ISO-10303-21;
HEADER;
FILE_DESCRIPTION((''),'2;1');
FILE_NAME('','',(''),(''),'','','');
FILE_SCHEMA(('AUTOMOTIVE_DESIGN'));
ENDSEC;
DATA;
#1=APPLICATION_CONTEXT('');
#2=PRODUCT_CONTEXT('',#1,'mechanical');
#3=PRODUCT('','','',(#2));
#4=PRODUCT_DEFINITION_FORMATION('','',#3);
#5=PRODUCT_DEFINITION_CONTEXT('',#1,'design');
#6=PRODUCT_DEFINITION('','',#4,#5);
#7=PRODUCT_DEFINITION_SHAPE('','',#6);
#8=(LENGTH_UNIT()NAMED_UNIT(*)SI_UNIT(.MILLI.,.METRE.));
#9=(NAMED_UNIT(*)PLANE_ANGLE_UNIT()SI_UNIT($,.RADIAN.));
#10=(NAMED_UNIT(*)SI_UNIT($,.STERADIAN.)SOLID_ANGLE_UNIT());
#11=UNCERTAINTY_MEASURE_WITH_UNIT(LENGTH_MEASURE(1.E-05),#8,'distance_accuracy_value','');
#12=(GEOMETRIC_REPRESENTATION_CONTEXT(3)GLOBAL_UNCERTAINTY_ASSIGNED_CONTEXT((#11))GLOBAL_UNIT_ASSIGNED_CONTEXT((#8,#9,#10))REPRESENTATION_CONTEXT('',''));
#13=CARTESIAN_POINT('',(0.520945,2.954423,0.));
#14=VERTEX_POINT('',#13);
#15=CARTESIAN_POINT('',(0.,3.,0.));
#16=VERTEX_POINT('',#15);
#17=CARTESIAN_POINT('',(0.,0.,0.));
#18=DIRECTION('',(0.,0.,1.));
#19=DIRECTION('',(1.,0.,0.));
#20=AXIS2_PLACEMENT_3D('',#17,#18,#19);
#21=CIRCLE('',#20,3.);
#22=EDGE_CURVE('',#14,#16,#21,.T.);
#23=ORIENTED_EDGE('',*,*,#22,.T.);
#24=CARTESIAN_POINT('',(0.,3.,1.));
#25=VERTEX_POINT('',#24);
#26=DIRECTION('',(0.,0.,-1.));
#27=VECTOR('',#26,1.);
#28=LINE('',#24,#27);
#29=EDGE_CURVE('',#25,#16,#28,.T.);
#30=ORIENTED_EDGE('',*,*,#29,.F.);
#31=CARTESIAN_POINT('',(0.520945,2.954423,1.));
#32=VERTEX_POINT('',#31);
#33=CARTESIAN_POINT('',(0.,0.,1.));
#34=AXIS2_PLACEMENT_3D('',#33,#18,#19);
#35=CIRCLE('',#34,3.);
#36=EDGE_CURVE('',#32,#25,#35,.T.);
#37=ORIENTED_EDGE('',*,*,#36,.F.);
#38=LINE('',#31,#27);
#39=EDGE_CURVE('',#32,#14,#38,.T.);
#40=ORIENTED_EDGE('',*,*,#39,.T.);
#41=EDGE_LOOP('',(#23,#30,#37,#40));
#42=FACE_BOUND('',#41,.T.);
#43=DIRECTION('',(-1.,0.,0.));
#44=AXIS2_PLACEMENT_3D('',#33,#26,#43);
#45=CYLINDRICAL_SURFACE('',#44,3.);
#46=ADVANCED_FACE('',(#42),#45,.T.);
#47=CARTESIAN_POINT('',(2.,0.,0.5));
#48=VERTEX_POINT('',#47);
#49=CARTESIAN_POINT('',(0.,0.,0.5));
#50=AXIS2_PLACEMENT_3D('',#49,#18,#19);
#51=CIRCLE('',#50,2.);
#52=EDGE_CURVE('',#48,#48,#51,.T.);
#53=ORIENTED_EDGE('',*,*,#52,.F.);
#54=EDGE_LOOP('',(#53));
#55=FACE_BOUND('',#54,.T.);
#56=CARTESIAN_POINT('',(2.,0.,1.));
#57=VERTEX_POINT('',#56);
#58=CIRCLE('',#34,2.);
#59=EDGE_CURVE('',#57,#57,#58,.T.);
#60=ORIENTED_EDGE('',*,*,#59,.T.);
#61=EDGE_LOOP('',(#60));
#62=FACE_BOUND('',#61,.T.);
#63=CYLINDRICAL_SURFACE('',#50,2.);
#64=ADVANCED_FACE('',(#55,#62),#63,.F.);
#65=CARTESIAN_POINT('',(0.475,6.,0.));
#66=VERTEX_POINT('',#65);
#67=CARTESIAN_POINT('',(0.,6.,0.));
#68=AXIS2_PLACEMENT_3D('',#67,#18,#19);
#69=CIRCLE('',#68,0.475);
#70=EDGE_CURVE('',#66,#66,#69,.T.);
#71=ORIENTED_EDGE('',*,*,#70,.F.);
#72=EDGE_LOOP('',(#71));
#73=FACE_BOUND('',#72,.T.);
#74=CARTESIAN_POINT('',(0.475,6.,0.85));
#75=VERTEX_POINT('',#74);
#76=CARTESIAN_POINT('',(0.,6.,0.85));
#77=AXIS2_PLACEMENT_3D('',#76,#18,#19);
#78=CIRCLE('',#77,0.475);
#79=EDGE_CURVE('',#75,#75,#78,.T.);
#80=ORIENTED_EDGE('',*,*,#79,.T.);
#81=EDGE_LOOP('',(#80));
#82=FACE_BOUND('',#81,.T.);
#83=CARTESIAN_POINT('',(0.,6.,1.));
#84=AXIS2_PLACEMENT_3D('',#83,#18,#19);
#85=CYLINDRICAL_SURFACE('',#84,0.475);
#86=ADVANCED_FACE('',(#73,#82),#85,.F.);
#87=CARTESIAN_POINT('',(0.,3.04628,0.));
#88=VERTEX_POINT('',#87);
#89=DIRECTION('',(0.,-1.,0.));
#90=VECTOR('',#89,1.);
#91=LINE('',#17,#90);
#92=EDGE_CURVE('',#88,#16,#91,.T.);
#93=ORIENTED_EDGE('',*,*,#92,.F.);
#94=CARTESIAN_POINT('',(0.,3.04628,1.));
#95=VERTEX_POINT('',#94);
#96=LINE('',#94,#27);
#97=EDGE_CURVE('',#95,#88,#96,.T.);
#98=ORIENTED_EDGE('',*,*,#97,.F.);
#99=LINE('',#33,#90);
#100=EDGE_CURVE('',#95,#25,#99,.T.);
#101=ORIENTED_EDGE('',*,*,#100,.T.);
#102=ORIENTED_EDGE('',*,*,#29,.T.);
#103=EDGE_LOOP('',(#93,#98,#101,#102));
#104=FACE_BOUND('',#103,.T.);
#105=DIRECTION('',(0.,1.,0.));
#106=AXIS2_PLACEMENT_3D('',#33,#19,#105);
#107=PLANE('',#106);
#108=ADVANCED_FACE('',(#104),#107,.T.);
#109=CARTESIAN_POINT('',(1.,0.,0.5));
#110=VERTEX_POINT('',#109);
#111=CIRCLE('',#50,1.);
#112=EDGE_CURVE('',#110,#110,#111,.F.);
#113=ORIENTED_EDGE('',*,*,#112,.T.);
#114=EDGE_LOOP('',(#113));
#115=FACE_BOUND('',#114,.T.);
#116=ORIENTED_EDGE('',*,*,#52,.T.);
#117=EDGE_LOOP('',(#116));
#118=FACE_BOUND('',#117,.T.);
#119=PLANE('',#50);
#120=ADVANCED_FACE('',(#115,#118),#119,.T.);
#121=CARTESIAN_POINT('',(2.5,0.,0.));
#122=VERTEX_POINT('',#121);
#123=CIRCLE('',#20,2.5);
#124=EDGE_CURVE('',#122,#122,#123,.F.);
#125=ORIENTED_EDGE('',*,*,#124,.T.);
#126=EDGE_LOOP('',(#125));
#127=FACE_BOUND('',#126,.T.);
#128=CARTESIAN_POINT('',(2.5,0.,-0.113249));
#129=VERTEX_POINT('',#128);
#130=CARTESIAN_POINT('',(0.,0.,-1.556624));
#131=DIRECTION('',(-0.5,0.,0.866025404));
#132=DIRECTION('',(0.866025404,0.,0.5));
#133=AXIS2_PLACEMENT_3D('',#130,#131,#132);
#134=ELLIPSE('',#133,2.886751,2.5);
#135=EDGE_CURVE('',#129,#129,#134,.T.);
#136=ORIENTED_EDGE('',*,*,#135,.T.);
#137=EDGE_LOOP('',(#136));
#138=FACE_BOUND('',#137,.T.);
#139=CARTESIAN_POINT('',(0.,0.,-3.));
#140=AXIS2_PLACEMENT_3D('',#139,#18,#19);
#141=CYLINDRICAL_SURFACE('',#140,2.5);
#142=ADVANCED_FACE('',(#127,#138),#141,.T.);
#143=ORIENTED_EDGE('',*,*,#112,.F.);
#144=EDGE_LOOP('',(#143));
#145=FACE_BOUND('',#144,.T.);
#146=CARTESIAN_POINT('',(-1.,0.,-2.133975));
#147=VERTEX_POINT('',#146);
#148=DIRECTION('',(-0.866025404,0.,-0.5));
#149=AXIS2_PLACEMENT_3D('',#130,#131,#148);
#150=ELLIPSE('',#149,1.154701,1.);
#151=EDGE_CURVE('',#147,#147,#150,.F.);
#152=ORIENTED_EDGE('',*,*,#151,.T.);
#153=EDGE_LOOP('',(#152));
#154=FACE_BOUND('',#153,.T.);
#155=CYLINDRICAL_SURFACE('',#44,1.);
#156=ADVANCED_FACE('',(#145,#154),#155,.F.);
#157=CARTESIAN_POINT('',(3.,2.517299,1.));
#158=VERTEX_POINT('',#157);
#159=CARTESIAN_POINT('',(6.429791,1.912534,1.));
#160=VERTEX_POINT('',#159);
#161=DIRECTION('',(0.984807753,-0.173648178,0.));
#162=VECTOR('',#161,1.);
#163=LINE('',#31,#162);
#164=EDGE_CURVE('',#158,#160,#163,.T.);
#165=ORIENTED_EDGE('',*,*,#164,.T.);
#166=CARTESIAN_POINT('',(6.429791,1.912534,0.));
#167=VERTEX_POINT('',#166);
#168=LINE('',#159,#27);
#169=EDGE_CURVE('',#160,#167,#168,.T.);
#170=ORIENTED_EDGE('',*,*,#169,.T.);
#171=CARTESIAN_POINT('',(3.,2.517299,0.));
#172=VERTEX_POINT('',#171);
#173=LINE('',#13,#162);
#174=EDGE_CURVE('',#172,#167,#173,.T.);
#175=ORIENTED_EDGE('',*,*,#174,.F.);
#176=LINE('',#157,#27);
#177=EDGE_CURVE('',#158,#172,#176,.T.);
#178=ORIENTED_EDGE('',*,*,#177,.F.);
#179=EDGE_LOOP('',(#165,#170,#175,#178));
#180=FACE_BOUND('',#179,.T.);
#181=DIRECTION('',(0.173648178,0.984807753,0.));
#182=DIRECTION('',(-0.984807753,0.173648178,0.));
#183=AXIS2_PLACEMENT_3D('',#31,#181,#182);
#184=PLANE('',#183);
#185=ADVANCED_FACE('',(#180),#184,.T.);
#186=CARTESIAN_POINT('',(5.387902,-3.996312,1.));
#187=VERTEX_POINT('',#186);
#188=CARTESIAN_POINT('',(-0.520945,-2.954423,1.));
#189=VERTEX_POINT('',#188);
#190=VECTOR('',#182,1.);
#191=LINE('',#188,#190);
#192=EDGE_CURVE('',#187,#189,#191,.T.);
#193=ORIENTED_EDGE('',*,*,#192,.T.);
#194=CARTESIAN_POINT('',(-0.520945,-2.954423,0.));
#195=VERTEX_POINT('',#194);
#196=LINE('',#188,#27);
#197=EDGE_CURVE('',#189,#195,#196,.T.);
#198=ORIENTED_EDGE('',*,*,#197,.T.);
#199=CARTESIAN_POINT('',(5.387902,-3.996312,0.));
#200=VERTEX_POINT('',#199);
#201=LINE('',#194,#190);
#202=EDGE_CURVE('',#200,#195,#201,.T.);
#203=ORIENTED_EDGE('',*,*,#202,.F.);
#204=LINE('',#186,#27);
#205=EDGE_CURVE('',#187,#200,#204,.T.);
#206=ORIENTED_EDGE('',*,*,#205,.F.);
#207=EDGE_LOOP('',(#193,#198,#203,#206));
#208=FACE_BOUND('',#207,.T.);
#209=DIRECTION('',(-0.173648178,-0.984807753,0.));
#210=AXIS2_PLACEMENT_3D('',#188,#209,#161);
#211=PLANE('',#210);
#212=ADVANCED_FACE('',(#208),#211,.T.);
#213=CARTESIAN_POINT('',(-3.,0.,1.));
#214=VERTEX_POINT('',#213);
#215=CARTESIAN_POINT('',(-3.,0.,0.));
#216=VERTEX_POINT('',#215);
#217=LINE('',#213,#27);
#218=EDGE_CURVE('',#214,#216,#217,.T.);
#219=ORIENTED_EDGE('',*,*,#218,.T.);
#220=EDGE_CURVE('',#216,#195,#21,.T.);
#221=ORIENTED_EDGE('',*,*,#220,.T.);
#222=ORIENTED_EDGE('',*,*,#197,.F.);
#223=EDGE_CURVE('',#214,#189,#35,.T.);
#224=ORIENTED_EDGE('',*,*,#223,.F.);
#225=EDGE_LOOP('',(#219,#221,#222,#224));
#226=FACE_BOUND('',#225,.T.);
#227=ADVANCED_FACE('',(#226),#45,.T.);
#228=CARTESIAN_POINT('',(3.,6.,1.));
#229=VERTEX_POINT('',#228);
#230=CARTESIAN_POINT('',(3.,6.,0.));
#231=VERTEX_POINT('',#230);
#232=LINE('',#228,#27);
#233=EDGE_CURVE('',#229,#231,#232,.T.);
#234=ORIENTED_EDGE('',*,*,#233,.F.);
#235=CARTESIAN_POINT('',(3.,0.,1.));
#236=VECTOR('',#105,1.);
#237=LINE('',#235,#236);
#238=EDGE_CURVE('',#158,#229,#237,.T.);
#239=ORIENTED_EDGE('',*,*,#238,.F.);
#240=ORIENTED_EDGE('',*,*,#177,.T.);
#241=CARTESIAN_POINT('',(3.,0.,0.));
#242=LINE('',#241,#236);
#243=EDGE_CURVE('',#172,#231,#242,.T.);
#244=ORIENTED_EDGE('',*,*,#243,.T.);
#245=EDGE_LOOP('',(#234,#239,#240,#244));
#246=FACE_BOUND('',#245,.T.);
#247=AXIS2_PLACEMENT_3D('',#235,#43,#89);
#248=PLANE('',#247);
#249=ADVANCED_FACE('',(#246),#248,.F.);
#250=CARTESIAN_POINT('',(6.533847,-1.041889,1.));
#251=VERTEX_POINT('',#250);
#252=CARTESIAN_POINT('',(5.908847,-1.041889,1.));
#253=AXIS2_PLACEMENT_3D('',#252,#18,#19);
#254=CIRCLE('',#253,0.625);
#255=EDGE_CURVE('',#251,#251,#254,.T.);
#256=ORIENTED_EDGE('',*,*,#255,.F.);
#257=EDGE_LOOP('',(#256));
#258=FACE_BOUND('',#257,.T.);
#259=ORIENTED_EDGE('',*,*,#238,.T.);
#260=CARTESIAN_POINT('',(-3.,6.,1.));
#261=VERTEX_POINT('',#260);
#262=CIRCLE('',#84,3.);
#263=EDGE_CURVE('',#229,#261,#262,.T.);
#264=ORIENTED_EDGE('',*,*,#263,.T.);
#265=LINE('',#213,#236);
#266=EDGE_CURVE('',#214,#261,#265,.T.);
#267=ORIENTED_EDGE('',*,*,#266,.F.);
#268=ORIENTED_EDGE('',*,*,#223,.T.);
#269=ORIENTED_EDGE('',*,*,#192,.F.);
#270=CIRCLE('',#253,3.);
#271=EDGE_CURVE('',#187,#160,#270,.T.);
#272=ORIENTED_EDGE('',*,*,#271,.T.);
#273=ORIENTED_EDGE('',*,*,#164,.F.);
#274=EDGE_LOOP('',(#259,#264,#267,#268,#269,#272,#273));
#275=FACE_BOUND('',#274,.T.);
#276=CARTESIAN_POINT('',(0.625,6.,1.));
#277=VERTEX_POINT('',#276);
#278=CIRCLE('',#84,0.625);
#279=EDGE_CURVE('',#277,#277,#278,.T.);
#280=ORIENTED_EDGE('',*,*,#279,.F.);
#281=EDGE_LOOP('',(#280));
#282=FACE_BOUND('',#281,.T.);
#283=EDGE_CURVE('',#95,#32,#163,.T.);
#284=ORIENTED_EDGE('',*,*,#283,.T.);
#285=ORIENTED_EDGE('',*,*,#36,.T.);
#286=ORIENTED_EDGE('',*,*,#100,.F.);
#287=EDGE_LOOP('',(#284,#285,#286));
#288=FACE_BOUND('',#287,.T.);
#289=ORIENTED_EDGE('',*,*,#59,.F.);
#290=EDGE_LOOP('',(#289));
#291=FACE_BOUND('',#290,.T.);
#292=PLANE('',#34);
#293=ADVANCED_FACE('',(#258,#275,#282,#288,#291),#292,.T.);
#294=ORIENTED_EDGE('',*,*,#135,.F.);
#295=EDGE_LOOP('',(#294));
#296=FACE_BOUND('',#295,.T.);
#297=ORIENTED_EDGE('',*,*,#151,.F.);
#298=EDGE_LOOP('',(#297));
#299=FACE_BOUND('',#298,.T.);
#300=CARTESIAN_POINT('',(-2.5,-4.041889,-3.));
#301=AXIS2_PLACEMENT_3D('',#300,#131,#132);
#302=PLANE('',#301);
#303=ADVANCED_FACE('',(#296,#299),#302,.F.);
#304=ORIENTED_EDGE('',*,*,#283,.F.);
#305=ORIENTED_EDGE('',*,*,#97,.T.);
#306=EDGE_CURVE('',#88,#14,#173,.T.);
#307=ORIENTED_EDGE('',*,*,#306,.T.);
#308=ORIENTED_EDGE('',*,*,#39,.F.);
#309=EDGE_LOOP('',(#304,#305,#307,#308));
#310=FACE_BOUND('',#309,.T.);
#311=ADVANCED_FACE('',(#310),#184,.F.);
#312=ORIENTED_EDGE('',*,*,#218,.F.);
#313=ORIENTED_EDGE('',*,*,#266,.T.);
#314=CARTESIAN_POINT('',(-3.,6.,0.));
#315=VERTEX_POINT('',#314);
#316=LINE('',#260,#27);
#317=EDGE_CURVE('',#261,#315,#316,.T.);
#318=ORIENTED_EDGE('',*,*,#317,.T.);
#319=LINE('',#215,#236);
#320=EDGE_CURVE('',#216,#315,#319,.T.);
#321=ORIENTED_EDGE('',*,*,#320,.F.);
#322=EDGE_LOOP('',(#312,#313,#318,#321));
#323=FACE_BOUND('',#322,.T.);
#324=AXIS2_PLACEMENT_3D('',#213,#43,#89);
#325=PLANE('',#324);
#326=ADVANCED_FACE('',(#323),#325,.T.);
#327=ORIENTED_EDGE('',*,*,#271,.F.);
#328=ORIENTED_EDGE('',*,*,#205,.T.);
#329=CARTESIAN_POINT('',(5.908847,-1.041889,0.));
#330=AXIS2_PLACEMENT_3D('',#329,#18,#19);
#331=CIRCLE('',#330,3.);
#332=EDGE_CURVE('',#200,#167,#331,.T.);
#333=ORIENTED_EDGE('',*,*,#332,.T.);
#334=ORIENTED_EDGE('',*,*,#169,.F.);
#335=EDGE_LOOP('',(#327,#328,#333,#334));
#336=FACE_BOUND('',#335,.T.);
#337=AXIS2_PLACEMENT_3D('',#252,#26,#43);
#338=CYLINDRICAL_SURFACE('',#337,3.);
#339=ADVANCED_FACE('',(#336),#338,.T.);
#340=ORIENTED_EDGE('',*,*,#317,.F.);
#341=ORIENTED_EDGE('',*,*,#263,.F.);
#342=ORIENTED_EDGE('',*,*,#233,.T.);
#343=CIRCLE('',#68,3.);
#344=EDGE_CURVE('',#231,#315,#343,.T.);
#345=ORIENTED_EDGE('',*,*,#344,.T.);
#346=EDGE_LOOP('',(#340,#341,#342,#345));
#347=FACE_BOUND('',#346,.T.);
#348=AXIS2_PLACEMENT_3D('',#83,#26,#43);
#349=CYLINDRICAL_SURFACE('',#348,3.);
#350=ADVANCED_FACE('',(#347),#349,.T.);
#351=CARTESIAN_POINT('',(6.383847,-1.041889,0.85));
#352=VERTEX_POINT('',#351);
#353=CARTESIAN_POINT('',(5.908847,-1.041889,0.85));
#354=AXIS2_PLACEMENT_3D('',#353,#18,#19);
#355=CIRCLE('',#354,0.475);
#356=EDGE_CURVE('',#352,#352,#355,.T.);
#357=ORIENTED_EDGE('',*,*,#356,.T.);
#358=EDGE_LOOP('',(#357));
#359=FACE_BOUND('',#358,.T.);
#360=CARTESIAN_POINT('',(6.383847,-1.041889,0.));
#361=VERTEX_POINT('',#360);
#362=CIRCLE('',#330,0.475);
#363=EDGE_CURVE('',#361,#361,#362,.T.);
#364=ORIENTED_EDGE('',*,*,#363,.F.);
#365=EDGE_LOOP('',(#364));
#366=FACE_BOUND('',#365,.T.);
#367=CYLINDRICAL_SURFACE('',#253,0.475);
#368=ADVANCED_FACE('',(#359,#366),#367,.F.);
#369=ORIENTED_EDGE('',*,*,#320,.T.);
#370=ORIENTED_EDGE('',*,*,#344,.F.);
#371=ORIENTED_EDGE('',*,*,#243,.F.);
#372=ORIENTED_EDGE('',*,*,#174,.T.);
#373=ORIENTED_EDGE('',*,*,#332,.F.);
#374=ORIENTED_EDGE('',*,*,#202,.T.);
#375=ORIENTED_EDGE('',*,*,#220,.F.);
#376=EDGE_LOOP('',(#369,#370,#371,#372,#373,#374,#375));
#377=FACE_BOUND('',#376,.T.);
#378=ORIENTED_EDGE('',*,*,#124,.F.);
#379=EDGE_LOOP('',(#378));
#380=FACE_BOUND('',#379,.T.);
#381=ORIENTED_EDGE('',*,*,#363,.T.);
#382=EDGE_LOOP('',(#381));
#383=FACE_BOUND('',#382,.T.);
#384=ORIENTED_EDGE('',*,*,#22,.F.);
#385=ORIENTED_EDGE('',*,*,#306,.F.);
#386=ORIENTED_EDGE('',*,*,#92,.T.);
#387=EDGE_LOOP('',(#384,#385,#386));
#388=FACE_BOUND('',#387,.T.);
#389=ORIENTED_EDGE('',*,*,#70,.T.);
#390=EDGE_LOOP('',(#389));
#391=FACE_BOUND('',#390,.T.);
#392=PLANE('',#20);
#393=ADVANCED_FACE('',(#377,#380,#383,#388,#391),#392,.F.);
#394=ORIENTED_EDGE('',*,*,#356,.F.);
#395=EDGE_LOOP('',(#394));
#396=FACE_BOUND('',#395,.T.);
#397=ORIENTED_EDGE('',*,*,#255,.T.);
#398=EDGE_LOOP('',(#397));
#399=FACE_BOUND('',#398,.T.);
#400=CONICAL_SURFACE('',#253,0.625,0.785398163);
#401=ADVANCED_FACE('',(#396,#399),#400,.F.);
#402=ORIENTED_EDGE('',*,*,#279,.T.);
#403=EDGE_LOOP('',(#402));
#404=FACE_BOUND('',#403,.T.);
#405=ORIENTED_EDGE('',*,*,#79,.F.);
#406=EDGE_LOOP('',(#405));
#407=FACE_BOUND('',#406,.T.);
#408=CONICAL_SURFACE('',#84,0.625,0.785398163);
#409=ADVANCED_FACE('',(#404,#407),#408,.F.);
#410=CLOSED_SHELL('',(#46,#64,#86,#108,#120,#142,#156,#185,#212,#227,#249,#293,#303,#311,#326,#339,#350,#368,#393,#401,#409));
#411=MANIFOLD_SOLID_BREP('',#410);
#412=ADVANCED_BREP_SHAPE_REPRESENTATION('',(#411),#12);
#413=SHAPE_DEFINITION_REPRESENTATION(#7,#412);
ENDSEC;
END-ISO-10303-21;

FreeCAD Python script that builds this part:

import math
import FreeCAD as App
import Part
import Sketcher

V = App.Vector
Q = App.Units.Quantity


def add_polygon(sketch, points):
    """Adds a closed chain of lines whose ends are joined by coincident constraints."""
    first, n = sketch.GeometryCount, len(points)
    for a, b in zip(points, points[1:] + points[:1]):
        sketch.addGeometry(Part.LineSegment(App.Vector(*a, 0), App.Vector(*b, 0)), False)
    for i in range(n):
        sketch.addConstraint(Sketcher.Constraint("Coincident", first + i, 2, first + (i + 1) % n, 1))

doc = App.newDocument("Part")
body = doc.addObject("PartDesign::Body", "Body")

# Sketch on XY plane
sketch1 = body.newObject("Sketcher::SketchObject", "Sketch")
sketch1.AttachmentSupport = (doc.getObject("XY_Plane"), [""])
sketch1.MapMode = "FlatFace"
sketch1.addGeometry([
    Part.ArcOfCircle(Part.Circle(V(5.909, -1.042, 0), V(0, 0, 1), 3), math.radians(-100), math.radians(80)),  # 0
    Part.LineSegment(V(6.43, 1.913, 0), V(3, 2.517, 0)),  # 1
    Part.LineSegment(V(3, 2.517, 0), V(3, 6, 0)),  # 2
    Part.ArcOfCircle(Part.Circle(V(0, 6, 0), V(0, 0, 1), 3), math.radians(0), math.radians(180)),  # 3
    Part.LineSegment(V(-3, 6, 0), V(-3, 0, 0)),  # 4
    Part.ArcOfCircle(Part.Circle(V(0, 0, 0), V(0, 0, 1), 3), math.radians(-180), math.radians(-100)),  # 5
    Part.LineSegment(V(-0.521, -2.954, 0), V(5.388, -3.996, 0)),  # 6
    Part.LineSegment(V(0, 3.046, 0), V(0.521, 2.954, 0)),  # 7
    Part.ArcOfCircle(Part.Circle(V(0, 0, 0), V(0, 0, 1), 3), math.radians(80), math.radians(90)),  # 8
    Part.LineSegment(V(0, 3, 0), V(0, 3.046, 0)),  # 9
], False)
sketch1.addConstraint([
    Sketcher.Constraint("Tangent", 0, 2, 1, 1),
    Sketcher.Constraint("Coincident", 1, 2, 2, 1),
    Sketcher.Constraint("Tangent", 2, 2, 3, 1),
    Sketcher.Constraint("Tangent", 3, 2, 4, 1),
    Sketcher.Constraint("Tangent", 4, 2, 5, 1),
    Sketcher.Constraint("Tangent", 5, 2, 6, 1),
    Sketcher.Constraint("Tangent", 6, 2, 0, 1),
    Sketcher.Constraint("Tangent", 7, 2, 8, 1),
    Sketcher.Constraint("Coincident", 8, 2, 9, 1),
    Sketcher.Constraint("Coincident", 9, 2, 7, 1),
    Sketcher.Constraint("Vertical", 2),
    Sketcher.Constraint("Vertical", 4),
    Sketcher.Constraint("Vertical", 9),
    Sketcher.Constraint("Coincident", 5, 3, -1, 1),
    Sketcher.Constraint("Coincident", 8, 3, -1, 1),
    Sketcher.Constraint("Equal", 0, 3),
    Sketcher.Constraint("Equal", 3, 5),
    Sketcher.Constraint("Equal", 5, 8),
    Sketcher.Constraint("PointOnObject", 8, 2, -2),
    Sketcher.Constraint("Parallel", 1, 6),
    Sketcher.Constraint("Parallel", 6, 7),
    Sketcher.Constraint("Radius", 0, Q("3 mm")),
    Sketcher.Constraint("DistanceY", 4, 2, 4, 1, Q("6 mm")),
    Sketcher.Constraint("Angle", 1, Q("170 deg")),
    Sketcher.Constraint("Distance", 6, Q("6 mm")),
])
pad1 = body.newObject("PartDesign::Pad", "Pad")
pad1.Profile = sketch1
pad1.Length = 1

# Sketch on XY plane
sketch2 = body.newObject("Sketcher::SketchObject", "Sketch001")
sketch2.AttachmentSupport = (doc.getObject("XY_Plane"), [""])
sketch2.MapMode = "FlatFace"
sketch2.addGeometry(Part.Circle(V(0, 0, 0), V(0, 0, 1), 2.5), False)
sketch2.addConstraint([
    Sketcher.Constraint("Coincident", 0, 3, -1, 1),
    Sketcher.Constraint("Diameter", 0, Q("5 mm")),
])
pad2 = body.newObject("PartDesign::Pad", "Pad001")
pad2.Profile = sketch2
pad2.Length = 3
pad2.Reversed = True

# Sketch on XY plane
sketch3 = body.newObject("Sketcher::SketchObject", "Sketch002")
sketch3.AttachmentSupport = (doc.getObject("XY_Plane"), [""])
sketch3.MapMode = "FlatFace"
sketch3.AttachmentOffset = App.Placement(V(0, 0, -3), App.Rotation())
sketch3.addGeometry(Part.Circle(V(0, 0, 0), V(0, 0, 1), 1), False)
sketch3.addConstraint([
    Sketcher.Constraint("Coincident", 0, 3, -1, 1),
    Sketcher.Constraint("Diameter", 0, Q("2 mm")),
])
pocket1 = body.newObject("PartDesign::Pocket", "Pocket")
pocket1.Profile = sketch3
pocket1.Type = "ThroughAll"
pocket1.Reversed = True

# Sketch on XY plane
sketch4 = body.newObject("Sketcher::SketchObject", "Sketch003")
sketch4.AttachmentSupport = (doc.getObject("XY_Plane"), [""])
sketch4.MapMode = "FlatFace"
sketch4.AttachmentOffset = App.Placement(V(0, 0, 1), App.Rotation())
sketch4.addGeometry(Part.Circle(V(0, 0, 0), V(0, 0, 1), 2), False)
sketch4.addConstraint([
    Sketcher.Constraint("Coincident", 0, 3, -1, 1),
    Sketcher.Constraint("Diameter", 0, Q("4 mm")),
])
pocket2 = body.newObject("PartDesign::Pocket", "Pocket001")
pocket2.Profile = sketch4
pocket2.Length = 0.5

# Sketch on XZ plane
sketch5 = body.newObject("Sketcher::SketchObject", "Sketch004")
sketch5.AttachmentSupport = (doc.getObject("XZ_Plane"), [""])
sketch5.MapMode = "FlatFace"
add_polygon(sketch5, [(-2.5, -3), (2.5, -0.1), (2.5, -3)])  # lines 0-2
sketch5.addConstraint([
    Sketcher.Constraint("Vertical", 1),
    Sketcher.Constraint("Horizontal", 2),
    Sketcher.Constraint("DistanceX", 2, 2, 2, 1, Q("5 mm")),
    Sketcher.Constraint("Angle", 0, Q("30 deg")),
    Sketcher.Constraint("DistanceY", 1, 2, -1, 1, Q("3 mm")),
    Sketcher.Constraint("DistanceX", -1, 1, 0, 2, Q("2.5 mm")),
])
pocket3 = body.newObject("PartDesign::Pocket", "Pocket002")
pocket3.Profile = sketch5
pocket3.Type = "ThroughAll"
pocket3.Midplane = True

# Sketch on XY plane
sketch6 = body.newObject("Sketcher::SketchObject", "Sketch005")
sketch6.AttachmentSupport = (doc.getObject("XY_Plane"), [""])
sketch6.MapMode = "FlatFace"
sketch6.AttachmentOffset = App.Placement(V(0, 0, 1), App.Rotation())
sketch6.addGeometry([
    Part.Circle(V(0, 6, 0), V(0, 0, 1), 0.47),
    Part.Circle(V(5.91, -1.04, 0), V(0, 0, 1), 0.47),
], False)
sketch6.addConstraint([
    Sketcher.Constraint("Equal", 0, 1),
    Sketcher.Constraint("PointOnObject", 0, 3, -2),
    Sketcher.Constraint("Diameter", 0, Q("0.95 mm")),
    Sketcher.Constraint("DistanceY", -1, 1, 0, 3, Q("6 mm")),
    Sketcher.Constraint("DistanceY", 1, 3, -1, 1, Q("1.041889 mm")),
    Sketcher.Constraint("DistanceX", -1, 1, 1, 3, Q("5.908847 mm")),
])
doc.recompute()
hole = body.newObject("PartDesign::Hole", "Hole")
hole.Profile = sketch6
hole.ThreadType = "None"
hole.Diameter = 0.95
hole.DepthType = "ThroughAll"
hole.HoleCutType = "Countersink"
hole.HoleCutDiameter = 1.25
hole.HoleCutCountersinkAngle = 90

doc.recompute()
